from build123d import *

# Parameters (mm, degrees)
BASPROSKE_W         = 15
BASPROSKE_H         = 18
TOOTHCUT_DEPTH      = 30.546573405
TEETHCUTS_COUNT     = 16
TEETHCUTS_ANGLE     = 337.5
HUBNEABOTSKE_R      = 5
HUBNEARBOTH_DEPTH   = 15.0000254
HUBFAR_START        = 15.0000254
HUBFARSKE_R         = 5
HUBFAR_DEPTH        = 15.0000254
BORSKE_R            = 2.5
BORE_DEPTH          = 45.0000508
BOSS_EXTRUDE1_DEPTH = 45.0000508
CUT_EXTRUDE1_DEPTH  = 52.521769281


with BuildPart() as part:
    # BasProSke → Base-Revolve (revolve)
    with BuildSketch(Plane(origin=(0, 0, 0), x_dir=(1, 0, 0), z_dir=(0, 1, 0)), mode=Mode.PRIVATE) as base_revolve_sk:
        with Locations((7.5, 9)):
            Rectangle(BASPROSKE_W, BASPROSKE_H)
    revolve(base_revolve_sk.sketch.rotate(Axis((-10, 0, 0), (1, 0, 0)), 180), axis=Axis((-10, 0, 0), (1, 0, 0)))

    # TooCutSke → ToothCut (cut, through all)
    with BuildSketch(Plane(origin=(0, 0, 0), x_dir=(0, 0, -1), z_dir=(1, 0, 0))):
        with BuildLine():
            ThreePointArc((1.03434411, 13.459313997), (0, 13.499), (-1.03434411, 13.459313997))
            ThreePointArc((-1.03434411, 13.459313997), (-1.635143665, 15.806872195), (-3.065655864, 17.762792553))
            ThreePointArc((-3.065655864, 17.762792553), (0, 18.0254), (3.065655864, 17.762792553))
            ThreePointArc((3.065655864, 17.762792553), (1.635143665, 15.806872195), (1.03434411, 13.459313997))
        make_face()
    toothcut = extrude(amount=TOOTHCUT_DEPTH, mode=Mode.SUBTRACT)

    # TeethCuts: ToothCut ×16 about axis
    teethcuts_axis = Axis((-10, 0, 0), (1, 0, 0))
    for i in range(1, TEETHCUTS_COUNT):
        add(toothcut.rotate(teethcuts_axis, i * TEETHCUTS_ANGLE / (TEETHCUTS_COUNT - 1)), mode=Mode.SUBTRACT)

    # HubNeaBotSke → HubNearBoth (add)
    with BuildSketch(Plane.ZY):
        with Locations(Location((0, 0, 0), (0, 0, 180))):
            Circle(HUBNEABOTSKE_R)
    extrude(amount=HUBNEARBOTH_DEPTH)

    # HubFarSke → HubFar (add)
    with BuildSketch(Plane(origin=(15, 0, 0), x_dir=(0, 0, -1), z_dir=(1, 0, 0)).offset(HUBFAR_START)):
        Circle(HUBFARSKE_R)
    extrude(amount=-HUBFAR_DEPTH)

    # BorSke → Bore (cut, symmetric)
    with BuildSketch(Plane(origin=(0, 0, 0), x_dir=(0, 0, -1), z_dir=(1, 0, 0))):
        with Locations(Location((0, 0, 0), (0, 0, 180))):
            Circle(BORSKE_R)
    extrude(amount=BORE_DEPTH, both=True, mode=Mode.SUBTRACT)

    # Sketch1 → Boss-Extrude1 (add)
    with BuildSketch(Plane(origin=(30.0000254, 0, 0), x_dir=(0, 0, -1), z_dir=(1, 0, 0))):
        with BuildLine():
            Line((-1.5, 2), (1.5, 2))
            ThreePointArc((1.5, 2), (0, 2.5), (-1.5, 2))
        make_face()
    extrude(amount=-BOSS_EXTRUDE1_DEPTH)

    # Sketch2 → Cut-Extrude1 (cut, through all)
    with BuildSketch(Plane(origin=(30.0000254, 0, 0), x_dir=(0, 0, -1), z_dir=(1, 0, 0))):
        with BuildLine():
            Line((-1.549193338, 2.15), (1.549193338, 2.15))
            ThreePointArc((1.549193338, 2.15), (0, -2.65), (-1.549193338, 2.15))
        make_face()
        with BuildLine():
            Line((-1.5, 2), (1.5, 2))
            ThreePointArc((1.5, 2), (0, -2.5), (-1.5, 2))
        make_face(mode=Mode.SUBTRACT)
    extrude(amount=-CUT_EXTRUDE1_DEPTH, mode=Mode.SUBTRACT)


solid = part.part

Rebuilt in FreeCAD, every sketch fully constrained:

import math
import FreeCAD as App
import Part
import Sketcher
from FreeCAD import Vector
Q = App.Units.Quantity


def add_polygon(sketch, points):
    """Adds a closed chain of lines whose ends are joined by coincident constraints."""
    first, n = sketch.GeometryCount, len(points)
    for a, b in zip(points, points[1:] + points[:1]):
        sketch.addGeometry(Part.LineSegment(App.Vector(*a, 0), App.Vector(*b, 0)), False)
    for i in range(n):
        sketch.addConstraint(Sketcher.Constraint("Coincident", first + i, 2, first + (i + 1) % n, 1))

doc = App.newDocument("Part")
params = doc.addObject("Spreadsheet::Sheet", "Params")
for row, (alias, value) in enumerate([
    ("sketch1_width", "15 mm"),
    ("sketch1_height", "18 mm"),
    ("revolution_angle", "360 deg"),
    ("sketch2_radius", "6.4 mm"),
    ("sketch3_diameter", "10 mm"),
    ("pad1_length", "15.000025 mm"),
    ("sketch4_diameter", "10 mm"),
    ("pad2_length", "15.000025 mm"),
    ("sketch5_diameter", "5 mm"),
    ("pocket2_length", "90.000102 mm"),
    ("sketch6_radius", "2.5 mm"),
    ("sketch6_height", "3 mm"),
    ("pad3_length", "45.000051 mm"),
    ("sketch7_radius", "2.5 mm"),
    ("sketch7_height", "3 mm"),
    ("sketch7_radius2", "2.65 mm"),
], start=1):
    params.set(f"A{row}", alias)
    params.set(f"B{row}", "=" + value)
    params.setAlias(f"B{row}", alias)

body = doc.addObject("PartDesign::Body", "Body")

# Sketch on XZ plane
sketch1 = body.newObject("Sketcher::SketchObject", "Sketch")
sketch1.AttachmentSupport = (doc.getObject("XZ_Plane"), [""])
sketch1.MapMode = "FlatFace"
add_polygon(sketch1, [(0, -18), (0, 0), (15, 0), (15, -18)])  # lines 0-3
sketch1.addConstraint([
    Sketcher.Constraint("Vertical", 0),
    Sketcher.Constraint("Horizontal", 1),
    Sketcher.Constraint("Vertical", 2),
    Sketcher.Constraint("Horizontal", 3),
    Sketcher.Constraint("Coincident", 0, 2, -1, 1),
    Sketcher.Constraint("DistanceX", 1, 1, 1, 2, Q("15 mm")),
    Sketcher.Constraint("DistanceY", 0, 1, 0, 2, Q("18 mm")),
])
sketch1.setExpression("Constraints[9]", "Params.sketch1_width")
sketch1.setExpression("Constraints[10]", "Params.sketch1_height")
revolution = body.newObject("PartDesign::Revolution", "Revolution")
revolution.Profile = sketch1
revolution.ReferenceAxis = (sketch1, ["H_Axis"])
revolution.setExpression("Angle", "Params.revolution_angle")

# Sketch on YZ plane
sketch2 = body.newObject("Sketcher::SketchObject", "Sketch001")
sketch2.AttachmentSupport = (doc.getObject("YZ_Plane"), [""])
sketch2.MapMode = "FlatFace"
sketch2.addGeometry([
    Part.ArcOfCircle(Part.Circle(Vector(0, 0, 0), Vector(0, 0, 1), 13.499), math.radians(-4.394525), math.radians(4.394525)),
    Part.ArcOfCircle(Part.Circle(Vector(13.075007, -7.422795, 0), Vector(0, 0, 1), 6.4), math.radians(42.906426), math.radians(86.557431)),
    Part.ArcOfCircle(Part.Circle(Vector(0, 0, 0), Vector(0, 0, 1), 18.0254), math.radians(-9.792134), math.radians(9.792134)),
    Part.ArcOfCircle(Part.Circle(Vector(13.075007, 7.422795, 0), Vector(0, 0, 1), 6.4), math.radians(-86.557431), math.radians(-42.906426)),
], False)
sketch2.addConstraint([
    Sketcher.Constraint("Coincident", 0, 1, 1, 2),
    Sketcher.Constraint("Coincident", 1, 1, 2, 1),
    Sketcher.Constraint("Coincident", 2, 2, 3, 2),
    Sketcher.Constraint("Coincident", 3, 1, 0, 2),
    Sketcher.Constraint("Coincident", 0, 3, -1, 1),
    Sketcher.Constraint("Coincident", 2, 3, -1, 1),
    Sketcher.Constraint("Equal", 1, 3),
    Sketcher.Constraint("Symmetric", 1, 3, 3, 3, -1),
    Sketcher.Constraint("Radius", 1, Q("6.4 mm")),
    Sketcher.Constraint("Radius", 0, Q("13.499 mm")),
    Sketcher.Constraint("Radius", 2, Q("18.0254 mm")),
    Sketcher.Constraint("DistanceY", 0, 1, 2, 2, Q("4.1 mm")),
    Sketcher.Constraint("DistanceY", 1, 3, 3, 3, Q("14.84559 mm")),
])
sketch2.setExpression("Constraints[8]", "Params.sketch2_radius")
pocket1 = body.newObject("PartDesign::Pocket", "Pocket")
pocket1.Profile = sketch2
pocket1.Type = "ThroughAll"
pocket1.Reversed = True
doc.recompute()

polarpattern = body.newObject("PartDesign::PolarPattern", "PolarPattern")
polarpattern.Originals = [pocket1]
polarpattern.Axis = (doc.getObject("X_Axis"), [""])
polarpattern.Angle = 360
polarpattern.Occurrences = 16
body.Tip = polarpattern

# Sketch on YZ plane
sketch3 = body.newObject("Sketcher::SketchObject", "Sketch002")
sketch3.AttachmentSupport = (doc.getObject("YZ_Plane"), [""])
sketch3.MapMode = "FlatFace"
sketch3.addGeometry(Part.Circle(Vector(0, 0, 0), Vector(0, 0, 1), 5), False)
sketch3.addConstraint([
    Sketcher.Constraint("Coincident", 0, 3, -1, 1),
    Sketcher.Constraint("Diameter", 0, Q("10 mm")),
])
sketch3.setExpression("Constraints[1]", "Params.sketch3_diameter")
pad1 = body.newObject("PartDesign::Pad", "Pad")
pad1.Profile = sketch3
pad1.setExpression("Length", "Params.pad1_length")
pad1.Reversed = True

# Sketch on YZ plane
sketch4 = body.newObject("Sketcher::SketchObject", "Sketch003")
sketch4.AttachmentSupport = (doc.getObject("YZ_Plane"), [""])
sketch4.MapMode = "FlatFace"
sketch4.AttachmentOffset = App.Placement(Vector(0, 0, 30.000025), App.Rotation())
sketch4.addGeometry(Part.Circle(Vector(0, 0, 0), Vector(0, 0, 1), 5), False)
sketch4.addConstraint([
    Sketcher.Constraint("Coincident", 0, 3, -1, 1),
    Sketcher.Constraint("Diameter", 0, Q("10 mm")),
])
sketch4.setExpression("Constraints[1]", "Params.sketch4_diameter")
pad2 = body.newObject("PartDesign::Pad", "Pad001")
pad2.Profile = sketch4
pad2.setExpression("Length", "Params.pad2_length")
pad2.Reversed = True

# Sketch on YZ plane
sketch5 = body.newObject("Sketcher::SketchObject", "Sketch004")
sketch5.AttachmentSupport = (doc.getObject("YZ_Plane"), [""])
sketch5.MapMode = "FlatFace"
sketch5.addGeometry(Part.Circle(Vector(0, 0, 0), Vector(0, 0, 1), 2.5), False)
sketch5.addConstraint([
    Sketcher.Constraint("Coincident", 0, 3, -1, 1),
    Sketcher.Constraint("Diameter", 0, Q("5 mm")),
])
sketch5.setExpression("Constraints[1]", "Params.sketch5_diameter")
pocket2 = body.newObject("PartDesign::Pocket", "Pocket001")
pocket2.Profile = sketch5
pocket2.setExpression("Length", "Params.pocket2_length")
pocket2.Midplane = True

# Sketch on YZ plane
sketch6 = body.newObject("Sketcher::SketchObject", "Sketch005")
sketch6.AttachmentSupport = (doc.getObject("YZ_Plane"), [""])
sketch6.MapMode = "FlatFace"
sketch6.AttachmentOffset = App.Placement(Vector(0, 0, 30.000025), App.Rotation())
sketch6.addGeometry([
    Part.LineSegment(Vector(2, 1.5, 0), Vector(2, -1.5, 0)),
    Part.ArcOfCircle(Part.Circle(Vector(0, 0, 0), Vector(0, 0, 1), 2.5), math.radians(-36.869898), math.radians(36.869898)),
], False)
sketch6.addConstraint([
    Sketcher.Constraint("Coincident", 0, 1, 1, 2),
    Sketcher.Constraint("Coincident", 1, 1, 0, 2),
    Sketcher.Constraint("Vertical", 0),
    Sketcher.Constraint("Coincident", 1, 3, -1, 1),
    Sketcher.Constraint("Radius", 1, Q("2.5 mm")),
    Sketcher.Constraint("DistanceY", 0, 2, 0, 1, Q("3 mm")),
])
sketch6.setExpression("Constraints[4]", "Params.sketch6_radius")
sketch6.setExpression("Constraints[5]", "Params.sketch6_height")
pad3 = body.newObject("PartDesign::Pad", "Pad002")
pad3.Profile = sketch6
pad3.setExpression("Length", "Params.pad3_length")
pad3.Reversed = True

# Sketch on YZ plane
sketch7 = body.newObject("Sketcher::SketchObject", "Sketch006")
sketch7.AttachmentSupport = (doc.getObject("YZ_Plane"), [""])
sketch7.MapMode = "FlatFace"
sketch7.AttachmentOffset = App.Placement(Vector(0, 0, 30.000025), App.Rotation())
sketch7.addGeometry([
    Part.LineSegment(Vector(2.15, -1.549193, 0), Vector(2.15, 1.549193, 0)),
    Part.ArcOfCircle(Part.Circle(Vector(0, 0, 0), Vector(0, 0, 1), 2.65), math.radians(35.774826), math.radians(324.225174)),
    Part.LineSegment(Vector(2, 1.5, 0), Vector(2, -1.5, 0)),
    Part.ArcOfCircle(Part.Circle(Vector(0, 0, 0), Vector(0, 0, 1), 2.5), math.radians(36.869898), math.radians(323.130102)),
], False)
sketch7.addConstraint([
    Sketcher.Constraint("Coincident", 0, 1, 1, 2),
    Sketcher.Constraint("Coincident", 1, 1, 0, 2),
    Sketcher.Constraint("Coincident", 2, 1, 3, 1),
    Sketcher.Constraint("Coincident", 3, 2, 2, 2),
    Sketcher.Constraint("Vertical", 0),
    Sketcher.Constraint("Vertical", 2),
    Sketcher.Constraint("Coincident", 1, 3, -1, 1),
    Sketcher.Constraint("Coincident", 3, 3, -1, 1),
    Sketcher.Constraint("Radius", 3, Q("2.5 mm")),
    Sketcher.Constraint("DistanceY", 2, 2, 2, 1, Q("3 mm")),
    Sketcher.Constraint("Radius", 1, Q("2.65 mm")),
    Sketcher.Constraint("DistanceX", -1, 1, 0, 1, Q("2.15 mm")),
])
sketch7.setExpression("Constraints[8]", "Params.sketch7_radius")
sketch7.setExpression("Constraints[9]", "Params.sketch7_height")
sketch7.setExpression("Constraints[10]", "Params.sketch7_radius2")
pocket3 = body.newObject("PartDesign::Pocket", "Pocket002")
pocket3.Profile = sketch7
pocket3.Type = "ThroughAll"

doc.recompute()
